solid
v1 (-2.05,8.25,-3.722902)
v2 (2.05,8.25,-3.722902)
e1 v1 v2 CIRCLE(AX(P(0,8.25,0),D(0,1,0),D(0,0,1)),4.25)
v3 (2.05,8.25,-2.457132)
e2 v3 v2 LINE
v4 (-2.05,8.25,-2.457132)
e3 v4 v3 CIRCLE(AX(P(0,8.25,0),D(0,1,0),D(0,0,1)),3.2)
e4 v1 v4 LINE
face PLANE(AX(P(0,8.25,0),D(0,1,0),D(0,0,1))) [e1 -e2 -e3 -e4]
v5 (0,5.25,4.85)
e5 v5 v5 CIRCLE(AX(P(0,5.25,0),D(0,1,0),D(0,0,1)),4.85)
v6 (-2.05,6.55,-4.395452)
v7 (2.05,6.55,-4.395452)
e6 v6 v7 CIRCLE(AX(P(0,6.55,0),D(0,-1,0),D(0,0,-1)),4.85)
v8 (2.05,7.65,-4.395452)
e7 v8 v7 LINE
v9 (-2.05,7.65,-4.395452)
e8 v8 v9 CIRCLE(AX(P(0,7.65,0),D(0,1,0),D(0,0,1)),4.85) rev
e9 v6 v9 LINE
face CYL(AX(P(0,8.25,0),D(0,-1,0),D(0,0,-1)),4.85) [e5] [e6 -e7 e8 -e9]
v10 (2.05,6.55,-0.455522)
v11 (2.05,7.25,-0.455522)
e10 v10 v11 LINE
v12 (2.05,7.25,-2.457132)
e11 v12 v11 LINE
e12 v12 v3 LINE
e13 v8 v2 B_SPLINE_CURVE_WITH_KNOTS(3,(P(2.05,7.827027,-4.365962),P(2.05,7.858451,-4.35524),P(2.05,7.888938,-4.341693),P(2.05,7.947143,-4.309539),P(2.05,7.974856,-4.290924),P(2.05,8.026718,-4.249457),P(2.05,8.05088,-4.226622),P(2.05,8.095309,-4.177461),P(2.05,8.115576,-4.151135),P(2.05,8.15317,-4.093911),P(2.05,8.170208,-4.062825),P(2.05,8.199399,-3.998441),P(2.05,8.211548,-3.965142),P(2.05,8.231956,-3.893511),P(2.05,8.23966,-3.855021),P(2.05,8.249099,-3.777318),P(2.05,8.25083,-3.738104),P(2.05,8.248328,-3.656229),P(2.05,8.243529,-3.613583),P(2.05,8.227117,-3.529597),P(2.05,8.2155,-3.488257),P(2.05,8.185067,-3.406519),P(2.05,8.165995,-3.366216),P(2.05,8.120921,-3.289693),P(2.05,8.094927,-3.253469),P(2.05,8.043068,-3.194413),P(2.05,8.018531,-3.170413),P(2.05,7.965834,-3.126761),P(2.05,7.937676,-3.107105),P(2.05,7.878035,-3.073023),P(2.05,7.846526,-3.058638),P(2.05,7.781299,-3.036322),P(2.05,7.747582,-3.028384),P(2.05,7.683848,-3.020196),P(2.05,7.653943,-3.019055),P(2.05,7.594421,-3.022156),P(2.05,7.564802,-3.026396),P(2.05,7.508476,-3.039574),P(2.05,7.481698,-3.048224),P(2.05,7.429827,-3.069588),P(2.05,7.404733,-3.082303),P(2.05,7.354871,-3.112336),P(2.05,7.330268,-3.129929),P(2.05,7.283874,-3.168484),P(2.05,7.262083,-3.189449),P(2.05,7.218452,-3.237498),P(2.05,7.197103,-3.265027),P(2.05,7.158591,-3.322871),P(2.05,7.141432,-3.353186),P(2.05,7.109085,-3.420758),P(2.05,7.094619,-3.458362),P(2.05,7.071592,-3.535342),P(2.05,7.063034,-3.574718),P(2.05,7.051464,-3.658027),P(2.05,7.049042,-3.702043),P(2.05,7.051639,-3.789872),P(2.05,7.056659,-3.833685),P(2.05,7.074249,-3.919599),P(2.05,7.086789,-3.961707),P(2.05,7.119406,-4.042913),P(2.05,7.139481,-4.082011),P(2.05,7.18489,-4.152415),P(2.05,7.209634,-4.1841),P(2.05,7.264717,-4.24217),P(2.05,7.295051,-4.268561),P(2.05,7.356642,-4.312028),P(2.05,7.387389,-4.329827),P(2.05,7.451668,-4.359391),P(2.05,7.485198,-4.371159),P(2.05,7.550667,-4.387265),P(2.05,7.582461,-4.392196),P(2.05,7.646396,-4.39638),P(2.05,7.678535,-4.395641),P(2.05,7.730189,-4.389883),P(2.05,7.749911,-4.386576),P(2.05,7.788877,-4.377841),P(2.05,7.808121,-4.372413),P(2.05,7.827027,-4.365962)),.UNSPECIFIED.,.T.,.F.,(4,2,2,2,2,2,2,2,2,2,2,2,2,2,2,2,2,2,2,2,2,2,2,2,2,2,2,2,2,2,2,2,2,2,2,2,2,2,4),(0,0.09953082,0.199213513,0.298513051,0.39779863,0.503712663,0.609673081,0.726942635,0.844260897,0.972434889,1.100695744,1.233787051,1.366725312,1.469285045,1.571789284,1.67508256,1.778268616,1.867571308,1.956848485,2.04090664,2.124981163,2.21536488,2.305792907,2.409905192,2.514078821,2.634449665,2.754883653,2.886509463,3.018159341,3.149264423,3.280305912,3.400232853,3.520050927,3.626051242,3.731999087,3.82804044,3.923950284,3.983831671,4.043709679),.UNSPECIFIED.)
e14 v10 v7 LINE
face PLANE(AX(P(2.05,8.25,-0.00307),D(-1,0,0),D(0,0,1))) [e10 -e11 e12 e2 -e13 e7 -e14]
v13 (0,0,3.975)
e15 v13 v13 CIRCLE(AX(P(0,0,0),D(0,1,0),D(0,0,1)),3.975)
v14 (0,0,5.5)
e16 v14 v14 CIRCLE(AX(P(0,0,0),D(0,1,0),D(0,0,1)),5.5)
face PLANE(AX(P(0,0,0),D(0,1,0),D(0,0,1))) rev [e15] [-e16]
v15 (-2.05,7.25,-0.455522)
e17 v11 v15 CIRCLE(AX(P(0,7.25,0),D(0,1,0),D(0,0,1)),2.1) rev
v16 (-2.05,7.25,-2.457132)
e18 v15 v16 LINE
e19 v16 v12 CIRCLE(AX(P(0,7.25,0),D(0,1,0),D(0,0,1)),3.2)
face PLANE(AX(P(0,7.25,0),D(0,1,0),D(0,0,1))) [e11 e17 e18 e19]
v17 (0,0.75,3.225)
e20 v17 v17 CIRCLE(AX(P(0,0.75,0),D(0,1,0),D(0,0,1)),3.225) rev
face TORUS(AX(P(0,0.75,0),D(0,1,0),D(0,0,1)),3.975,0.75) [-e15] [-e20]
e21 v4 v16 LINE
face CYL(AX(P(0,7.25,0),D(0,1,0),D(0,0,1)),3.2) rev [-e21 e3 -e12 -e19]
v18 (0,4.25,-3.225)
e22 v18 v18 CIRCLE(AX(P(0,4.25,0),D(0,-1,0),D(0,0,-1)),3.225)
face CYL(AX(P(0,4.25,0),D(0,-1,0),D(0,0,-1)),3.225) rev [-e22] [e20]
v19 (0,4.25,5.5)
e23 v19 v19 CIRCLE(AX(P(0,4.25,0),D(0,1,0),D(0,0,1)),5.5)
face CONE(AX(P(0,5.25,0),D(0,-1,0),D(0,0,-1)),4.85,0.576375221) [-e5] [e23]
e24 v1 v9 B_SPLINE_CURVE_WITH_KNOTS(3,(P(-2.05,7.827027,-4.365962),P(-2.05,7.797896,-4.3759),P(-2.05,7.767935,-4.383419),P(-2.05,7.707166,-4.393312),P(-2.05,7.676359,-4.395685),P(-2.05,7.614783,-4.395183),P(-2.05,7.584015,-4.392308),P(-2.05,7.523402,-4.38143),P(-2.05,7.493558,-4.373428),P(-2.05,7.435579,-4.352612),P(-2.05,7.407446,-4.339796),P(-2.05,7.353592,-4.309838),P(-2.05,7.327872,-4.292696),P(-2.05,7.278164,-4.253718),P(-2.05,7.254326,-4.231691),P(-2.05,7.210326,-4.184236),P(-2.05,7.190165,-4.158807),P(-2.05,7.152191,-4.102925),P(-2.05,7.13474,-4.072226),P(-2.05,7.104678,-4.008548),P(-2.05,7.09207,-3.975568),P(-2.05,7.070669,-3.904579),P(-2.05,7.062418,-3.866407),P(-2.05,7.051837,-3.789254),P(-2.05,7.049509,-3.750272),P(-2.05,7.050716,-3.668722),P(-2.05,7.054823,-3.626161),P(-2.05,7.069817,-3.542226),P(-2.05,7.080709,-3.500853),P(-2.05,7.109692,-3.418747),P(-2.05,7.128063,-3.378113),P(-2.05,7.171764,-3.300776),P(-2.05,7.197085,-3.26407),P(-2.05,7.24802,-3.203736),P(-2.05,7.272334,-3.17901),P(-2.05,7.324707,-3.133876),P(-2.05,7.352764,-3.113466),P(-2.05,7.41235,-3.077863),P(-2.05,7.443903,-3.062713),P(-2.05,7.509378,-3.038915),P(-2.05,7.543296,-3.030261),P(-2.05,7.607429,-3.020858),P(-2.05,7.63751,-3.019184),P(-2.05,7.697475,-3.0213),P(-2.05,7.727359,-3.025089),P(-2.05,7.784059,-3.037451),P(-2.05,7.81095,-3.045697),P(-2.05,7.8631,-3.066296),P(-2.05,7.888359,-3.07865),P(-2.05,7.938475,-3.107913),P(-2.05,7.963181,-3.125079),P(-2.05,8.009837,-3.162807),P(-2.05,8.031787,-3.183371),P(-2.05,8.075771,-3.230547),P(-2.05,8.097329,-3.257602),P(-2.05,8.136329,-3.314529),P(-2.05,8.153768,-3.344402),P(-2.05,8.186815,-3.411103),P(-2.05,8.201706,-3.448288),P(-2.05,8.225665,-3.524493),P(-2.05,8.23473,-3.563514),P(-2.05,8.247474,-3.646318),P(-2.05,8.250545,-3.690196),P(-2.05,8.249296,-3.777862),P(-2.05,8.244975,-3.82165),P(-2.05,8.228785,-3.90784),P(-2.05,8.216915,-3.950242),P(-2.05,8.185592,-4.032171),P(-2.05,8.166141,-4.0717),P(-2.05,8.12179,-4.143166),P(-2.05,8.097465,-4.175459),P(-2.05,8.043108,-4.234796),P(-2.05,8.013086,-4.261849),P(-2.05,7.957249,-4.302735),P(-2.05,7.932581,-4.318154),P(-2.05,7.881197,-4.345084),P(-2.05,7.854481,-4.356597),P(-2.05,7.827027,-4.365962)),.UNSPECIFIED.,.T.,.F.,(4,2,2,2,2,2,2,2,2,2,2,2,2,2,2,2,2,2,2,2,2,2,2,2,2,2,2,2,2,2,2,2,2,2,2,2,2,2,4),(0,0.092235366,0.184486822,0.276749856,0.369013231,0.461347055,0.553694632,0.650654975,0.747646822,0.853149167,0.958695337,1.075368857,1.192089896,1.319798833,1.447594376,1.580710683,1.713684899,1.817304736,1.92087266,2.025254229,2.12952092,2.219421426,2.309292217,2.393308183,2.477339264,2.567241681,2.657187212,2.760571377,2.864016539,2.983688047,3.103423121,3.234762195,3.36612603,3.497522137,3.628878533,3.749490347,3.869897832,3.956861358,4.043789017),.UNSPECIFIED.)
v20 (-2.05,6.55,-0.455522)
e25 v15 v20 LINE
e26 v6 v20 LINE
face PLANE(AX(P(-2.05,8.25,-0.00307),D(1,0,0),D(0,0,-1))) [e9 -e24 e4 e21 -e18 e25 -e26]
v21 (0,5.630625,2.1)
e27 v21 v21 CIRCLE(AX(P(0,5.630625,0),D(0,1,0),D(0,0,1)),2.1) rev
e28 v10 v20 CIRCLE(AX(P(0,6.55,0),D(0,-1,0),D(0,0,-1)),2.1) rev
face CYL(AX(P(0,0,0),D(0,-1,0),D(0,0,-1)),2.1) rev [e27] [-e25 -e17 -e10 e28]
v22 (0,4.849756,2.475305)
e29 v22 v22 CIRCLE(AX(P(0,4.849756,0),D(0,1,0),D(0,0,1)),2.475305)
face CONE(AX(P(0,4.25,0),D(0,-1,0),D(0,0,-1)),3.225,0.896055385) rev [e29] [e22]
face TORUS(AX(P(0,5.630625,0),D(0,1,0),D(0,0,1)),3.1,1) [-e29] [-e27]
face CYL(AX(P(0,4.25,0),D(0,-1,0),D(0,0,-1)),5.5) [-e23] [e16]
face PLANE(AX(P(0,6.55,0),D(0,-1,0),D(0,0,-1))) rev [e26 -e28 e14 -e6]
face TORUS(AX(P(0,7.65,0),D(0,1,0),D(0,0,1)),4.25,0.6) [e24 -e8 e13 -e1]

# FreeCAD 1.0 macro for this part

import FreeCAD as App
import Part
import Sketcher

V = App.Vector


def edges_at(feature, points):
    """Names of the edges that pass closest to the given points."""
    edges = feature.Shape.Edges
    near = lambda p: min(range(len(edges)), key=lambda i: edges[i].distToShape(Part.Vertex(*p))[0])
    return sorted({f"Edge{near(p) + 1}" for p in points})

doc = App.newDocument("Part")
params = doc.addObject("Spreadsheet::Sheet", "Params")
for row, (alias, value) in enumerate([
    ("sketch1_diameter", "11 mm"),
    ("sketch1_diameter2", "6.45 mm"),
    ("pad1_length", "4.25 mm"),
    ("sketch2_height", "0.1 mm"),
    ("sketch2_width", "2.75 mm"),
    ("revolution_angle", "360 deg"),
    ("sketch3_diameter", "9.7 mm"),
    ("sketch3_diameter2", "4.2 mm"),
    ("pad2_length", "3 mm"),
    ("fillet_radius", "0.6 mm"),
    ("sketch4_diameter", "6.4 mm"),
    ("pocket1_length", "1 mm"),
    ("sketch5_height", "5 mm"),
    ("sketch5_width", "4.1 mm"),
    ("fillet2_radius", "1 mm"),
    ("fillet3_radius", "0.75 mm"),
], start=1):
    params.set(f"A{row}", alias)
    params.set(f"B{row}", "=" + value)
    params.setAlias(f"B{row}", alias)

body = doc.addObject("PartDesign::Body", "Body")

sketch1 = body.newObject("Sketcher::SketchObject", "Sketch")
sketch1.AttachmentSupport = (doc.getObject("XZ_Plane"), [""])
sketch1.MapMode = "FlatFace"
sketch1.addGeometry(Part.Circle(V(0, 0, 0), V(0, 0, 1), 5.5), False)
sketch1.addGeometry(Part.Circle(V(0, 0, 0), V(0, 0, 1), 3.225), False)
sketch1.addConstraint(Sketcher.Constraint("Coincident", 0, 3, -1, 1))
sketch1.addConstraint(Sketcher.Constraint("Coincident", 1, 3, -1, 1))
sketch1.addConstraint(Sketcher.Constraint("Diameter", 0, 11.0))
sketch1.addConstraint(Sketcher.Constraint("Diameter", 1, 6.45))
sketch1.setExpression("Constraints[2]", "Params.sketch1_diameter")
sketch1.setExpression("Constraints[3]", "Params.sketch1_diameter2")
pad1 = body.newObject("PartDesign::Pad", "Pad")
pad1.Profile = sketch1
pad1.setExpression("Length", "Params.pad1_length")
pad1.Reversed = True

sketch2 = body.newObject("Sketcher::SketchObject", "Sketch001")
sketch2.AttachmentSupport = (doc.getObject("XY_Plane"), [""])
sketch2.MapMode = "FlatFace"
sketch2.addGeometry(Part.LineSegment(V(-4.85, 5.25, 0), V(-5.5, 4.25, 0)), False)
sketch2.addGeometry(Part.LineSegment(V(-5.5, 4.25, 0), V(-3.225, 4.25, 0)), False)
sketch2.addGeometry(Part.LineSegment(V(-3.225, 4.25, 0), V(-2.1, 5.15, 0)), False)
sketch2.addGeometry(Part.LineSegment(V(-2.1, 5.15, 0), V(-2.1, 5.25, 0)), False)
sketch2.addGeometry(Part.LineSegment(V(-2.1, 5.25, 0), V(-4.85, 5.25, 0)), False)
sketch2.addConstraint(Sketcher.Constraint("Coincident", 0, 2, 1, 1))
sketch2.addConstraint(Sketcher.Constraint("Coincident", 1, 2, 2, 1))
sketch2.addConstraint(Sketcher.Constraint("Coincident", 2, 2, 3, 1))
sketch2.addConstraint(Sketcher.Constraint("Coincident", 3, 2, 4, 1))
sketch2.addConstraint(Sketcher.Constraint("Coincident", 4, 2, 0, 1))
sketch2.addConstraint(Sketcher.Constraint("Horizontal", 1))
sketch2.addConstraint(Sketcher.Constraint("Vertical", 3))
sketch2.addConstraint(Sketcher.Constraint("Horizontal", 4))
sketch2.addConstraint(Sketcher.Constraint("DistanceY", 3, 1, 3, 2, 0.1))
sketch2.addConstraint(Sketcher.Constraint("DistanceY", 1, 2, 3, 2, 1.0))
sketch2.addConstraint(Sketcher.Constraint("DistanceX", 4, 2, 4, 1, 2.75))
sketch2.addConstraint(Sketcher.Constraint("DistanceX", 0, 2, -1, 1, 5.5))
sketch2.addConstraint(Sketcher.Constraint("DistanceX", 2, 2, -1, 1, 2.1))
sketch2.addConstraint(Sketcher.Constraint("DistanceX", 1, 1, 1, 2, 2.275))
sketch2.addConstraint(Sketcher.Constraint("DistanceY", -1, 1, 0, 2, 4.25))
sketch2.setExpression("Constraints[8]", "Params.sketch2_height")
sketch2.setExpression("Constraints[10]", "Params.sketch2_width")
revolution = body.newObject("PartDesign::Revolution", "Revolution")
revolution.Profile = sketch2
revolution.ReferenceAxis = (sketch2, ["V_Axis"])
revolution.setExpression("Angle", "Params.revolution_angle")

sketch3 = body.newObject("Sketcher::SketchObject", "Sketch002")
sketch3.AttachmentSupport = (doc.getObject("XZ_Plane"), [""])
sketch3.MapMode = "FlatFace"
sketch3.AttachmentOffset = App.Placement(V(0, 0, -5.25), App.Rotation())
sketch3.addGeometry(Part.Circle(V(0, 0, 0), V(0, 0, 1), 4.85), False)
sketch3.addGeometry(Part.Circle(V(0, 0, 0), V(0, 0, 1), 2.1), False)
sketch3.addConstraint(Sketcher.Constraint("Coincident", 0, 3, -1, 1))
sketch3.addConstraint(Sketcher.Constraint("Coincident", 1, 3, -1, 1))
sketch3.addConstraint(Sketcher.Constraint("Diameter", 0, 9.7))
sketch3.addConstraint(Sketcher.Constraint("Diameter", 1, 4.2))
sketch3.setExpression("Constraints[2]", "Params.sketch3_diameter")
sketch3.setExpression("Constraints[3]", "Params.sketch3_diameter2")
pad2 = body.newObject("PartDesign::Pad", "Pad001")
pad2.Profile = sketch3
pad2.setExpression("Length", "Params.pad2_length")
pad2.Reversed = True
doc.recompute()

fillet = body.newObject("PartDesign::Fillet", "Fillet")
fillet.Base = (pad2, edges_at(pad2, [(0, 8.25, -4.85)]))
fillet.setExpression("Radius", "Params.fillet_radius")

sketch4 = body.newObject("Sketcher::SketchObject", "Sketch003")
sketch4.AttachmentSupport = (doc.getObject("XZ_Plane"), [""])
sketch4.MapMode = "FlatFace"
sketch4.AttachmentOffset = App.Placement(V(0, 0, -8.25), App.Rotation())
sketch4.addGeometry(Part.Circle(V(0, 0, 0), V(0, 0, 1), 3.2), False)
sketch4.addConstraint(Sketcher.Constraint("Coincident", 0, 3, -1, 1))
sketch4.addConstraint(Sketcher.Constraint("Diameter", 0, 6.4))
sketch4.setExpression("Constraints[1]", "Params.sketch4_diameter")
pocket1 = body.newObject("PartDesign::Pocket", "Pocket")
pocket1.Profile = sketch4
pocket1.setExpression("Length", "Params.pocket1_length")
pocket1.Reversed = True

sketch5 = body.newObject("Sketcher::SketchObject", "Sketch004")
sketch5.AttachmentSupport = (doc.getObject("XZ_Plane"), [""])
sketch5.MapMode = "FlatFace"
sketch5.AttachmentOffset = App.Placement(V(0, 0, -6.55), App.Rotation())
sketch5.addGeometry(Part.LineSegment(V(-2.05, -5.00307, 0), V(-2.05, -0.00307, 0)), False)
sketch5.addGeometry(Part.LineSegment(V(-2.05, -0.00307, 0), V(2.05, -0.00307, 0)), False)
sketch5.addGeometry(Part.LineSegment(V(2.05, -0.00307, 0), V(2.05, -5.00307, 0)), False)
sketch5.addGeometry(Part.LineSegment(V(2.05, -5.00307, 0), V(-2.05, -5.00307, 0)), False)
sketch5.addConstraint(Sketcher.Constraint("Coincident", 0, 2, 1, 1))
sketch5.addConstraint(Sketcher.Constraint("Coincident", 1, 2, 2, 1))
sketch5.addConstraint(Sketcher.Constraint("Coincident", 2, 2, 3, 1))
sketch5.addConstraint(Sketcher.Constraint("Coincident", 3, 2, 0, 1))
sketch5.addConstraint(Sketcher.Constraint("Vertical", 0))
sketch5.addConstraint(Sketcher.Constraint("Horizontal", 1))
sketch5.addConstraint(Sketcher.Constraint("Vertical", 2))
sketch5.addConstraint(Sketcher.Constraint("Horizontal", 3))
sketch5.addConstraint(Sketcher.Constraint("DistanceY", 0, 1, 0, 2, 5.0))
sketch5.addConstraint(Sketcher.Constraint("DistanceX", 1, 1, 1, 2, 4.1))
sketch5.addConstraint(Sketcher.Constraint("DistanceX", 0, 2, -1, 1, 2.05))
sketch5.addConstraint(Sketcher.Constraint("DistanceY", 0, 2, -1, 1, 0.00307))
sketch5.setExpression("Constraints[8]", "Params.sketch5_height")
sketch5.setExpression("Constraints[9]", "Params.sketch5_width")
pocket2 = body.newObject("PartDesign::Pocket", "Pocket001")
pocket2.Profile = sketch5
pocket2.Type = "ThroughAll"
doc.recompute()

fillet2 = body.newObject("PartDesign::Fillet", "Fillet001")
fillet2.Base = (pocket2, edges_at(pocket2, [(0, 5.15, 2.1)]))
fillet2.setExpression("Radius", "Params.fillet2_radius")
doc.recompute()

fillet3 = body.newObject("PartDesign::Fillet", "Fillet002")
fillet3.Base = (fillet2, edges_at(fillet2, [(0, 0, -3.225)]))
fillet3.setExpression("Radius", "Params.fillet3_radius")

doc.recompute()
